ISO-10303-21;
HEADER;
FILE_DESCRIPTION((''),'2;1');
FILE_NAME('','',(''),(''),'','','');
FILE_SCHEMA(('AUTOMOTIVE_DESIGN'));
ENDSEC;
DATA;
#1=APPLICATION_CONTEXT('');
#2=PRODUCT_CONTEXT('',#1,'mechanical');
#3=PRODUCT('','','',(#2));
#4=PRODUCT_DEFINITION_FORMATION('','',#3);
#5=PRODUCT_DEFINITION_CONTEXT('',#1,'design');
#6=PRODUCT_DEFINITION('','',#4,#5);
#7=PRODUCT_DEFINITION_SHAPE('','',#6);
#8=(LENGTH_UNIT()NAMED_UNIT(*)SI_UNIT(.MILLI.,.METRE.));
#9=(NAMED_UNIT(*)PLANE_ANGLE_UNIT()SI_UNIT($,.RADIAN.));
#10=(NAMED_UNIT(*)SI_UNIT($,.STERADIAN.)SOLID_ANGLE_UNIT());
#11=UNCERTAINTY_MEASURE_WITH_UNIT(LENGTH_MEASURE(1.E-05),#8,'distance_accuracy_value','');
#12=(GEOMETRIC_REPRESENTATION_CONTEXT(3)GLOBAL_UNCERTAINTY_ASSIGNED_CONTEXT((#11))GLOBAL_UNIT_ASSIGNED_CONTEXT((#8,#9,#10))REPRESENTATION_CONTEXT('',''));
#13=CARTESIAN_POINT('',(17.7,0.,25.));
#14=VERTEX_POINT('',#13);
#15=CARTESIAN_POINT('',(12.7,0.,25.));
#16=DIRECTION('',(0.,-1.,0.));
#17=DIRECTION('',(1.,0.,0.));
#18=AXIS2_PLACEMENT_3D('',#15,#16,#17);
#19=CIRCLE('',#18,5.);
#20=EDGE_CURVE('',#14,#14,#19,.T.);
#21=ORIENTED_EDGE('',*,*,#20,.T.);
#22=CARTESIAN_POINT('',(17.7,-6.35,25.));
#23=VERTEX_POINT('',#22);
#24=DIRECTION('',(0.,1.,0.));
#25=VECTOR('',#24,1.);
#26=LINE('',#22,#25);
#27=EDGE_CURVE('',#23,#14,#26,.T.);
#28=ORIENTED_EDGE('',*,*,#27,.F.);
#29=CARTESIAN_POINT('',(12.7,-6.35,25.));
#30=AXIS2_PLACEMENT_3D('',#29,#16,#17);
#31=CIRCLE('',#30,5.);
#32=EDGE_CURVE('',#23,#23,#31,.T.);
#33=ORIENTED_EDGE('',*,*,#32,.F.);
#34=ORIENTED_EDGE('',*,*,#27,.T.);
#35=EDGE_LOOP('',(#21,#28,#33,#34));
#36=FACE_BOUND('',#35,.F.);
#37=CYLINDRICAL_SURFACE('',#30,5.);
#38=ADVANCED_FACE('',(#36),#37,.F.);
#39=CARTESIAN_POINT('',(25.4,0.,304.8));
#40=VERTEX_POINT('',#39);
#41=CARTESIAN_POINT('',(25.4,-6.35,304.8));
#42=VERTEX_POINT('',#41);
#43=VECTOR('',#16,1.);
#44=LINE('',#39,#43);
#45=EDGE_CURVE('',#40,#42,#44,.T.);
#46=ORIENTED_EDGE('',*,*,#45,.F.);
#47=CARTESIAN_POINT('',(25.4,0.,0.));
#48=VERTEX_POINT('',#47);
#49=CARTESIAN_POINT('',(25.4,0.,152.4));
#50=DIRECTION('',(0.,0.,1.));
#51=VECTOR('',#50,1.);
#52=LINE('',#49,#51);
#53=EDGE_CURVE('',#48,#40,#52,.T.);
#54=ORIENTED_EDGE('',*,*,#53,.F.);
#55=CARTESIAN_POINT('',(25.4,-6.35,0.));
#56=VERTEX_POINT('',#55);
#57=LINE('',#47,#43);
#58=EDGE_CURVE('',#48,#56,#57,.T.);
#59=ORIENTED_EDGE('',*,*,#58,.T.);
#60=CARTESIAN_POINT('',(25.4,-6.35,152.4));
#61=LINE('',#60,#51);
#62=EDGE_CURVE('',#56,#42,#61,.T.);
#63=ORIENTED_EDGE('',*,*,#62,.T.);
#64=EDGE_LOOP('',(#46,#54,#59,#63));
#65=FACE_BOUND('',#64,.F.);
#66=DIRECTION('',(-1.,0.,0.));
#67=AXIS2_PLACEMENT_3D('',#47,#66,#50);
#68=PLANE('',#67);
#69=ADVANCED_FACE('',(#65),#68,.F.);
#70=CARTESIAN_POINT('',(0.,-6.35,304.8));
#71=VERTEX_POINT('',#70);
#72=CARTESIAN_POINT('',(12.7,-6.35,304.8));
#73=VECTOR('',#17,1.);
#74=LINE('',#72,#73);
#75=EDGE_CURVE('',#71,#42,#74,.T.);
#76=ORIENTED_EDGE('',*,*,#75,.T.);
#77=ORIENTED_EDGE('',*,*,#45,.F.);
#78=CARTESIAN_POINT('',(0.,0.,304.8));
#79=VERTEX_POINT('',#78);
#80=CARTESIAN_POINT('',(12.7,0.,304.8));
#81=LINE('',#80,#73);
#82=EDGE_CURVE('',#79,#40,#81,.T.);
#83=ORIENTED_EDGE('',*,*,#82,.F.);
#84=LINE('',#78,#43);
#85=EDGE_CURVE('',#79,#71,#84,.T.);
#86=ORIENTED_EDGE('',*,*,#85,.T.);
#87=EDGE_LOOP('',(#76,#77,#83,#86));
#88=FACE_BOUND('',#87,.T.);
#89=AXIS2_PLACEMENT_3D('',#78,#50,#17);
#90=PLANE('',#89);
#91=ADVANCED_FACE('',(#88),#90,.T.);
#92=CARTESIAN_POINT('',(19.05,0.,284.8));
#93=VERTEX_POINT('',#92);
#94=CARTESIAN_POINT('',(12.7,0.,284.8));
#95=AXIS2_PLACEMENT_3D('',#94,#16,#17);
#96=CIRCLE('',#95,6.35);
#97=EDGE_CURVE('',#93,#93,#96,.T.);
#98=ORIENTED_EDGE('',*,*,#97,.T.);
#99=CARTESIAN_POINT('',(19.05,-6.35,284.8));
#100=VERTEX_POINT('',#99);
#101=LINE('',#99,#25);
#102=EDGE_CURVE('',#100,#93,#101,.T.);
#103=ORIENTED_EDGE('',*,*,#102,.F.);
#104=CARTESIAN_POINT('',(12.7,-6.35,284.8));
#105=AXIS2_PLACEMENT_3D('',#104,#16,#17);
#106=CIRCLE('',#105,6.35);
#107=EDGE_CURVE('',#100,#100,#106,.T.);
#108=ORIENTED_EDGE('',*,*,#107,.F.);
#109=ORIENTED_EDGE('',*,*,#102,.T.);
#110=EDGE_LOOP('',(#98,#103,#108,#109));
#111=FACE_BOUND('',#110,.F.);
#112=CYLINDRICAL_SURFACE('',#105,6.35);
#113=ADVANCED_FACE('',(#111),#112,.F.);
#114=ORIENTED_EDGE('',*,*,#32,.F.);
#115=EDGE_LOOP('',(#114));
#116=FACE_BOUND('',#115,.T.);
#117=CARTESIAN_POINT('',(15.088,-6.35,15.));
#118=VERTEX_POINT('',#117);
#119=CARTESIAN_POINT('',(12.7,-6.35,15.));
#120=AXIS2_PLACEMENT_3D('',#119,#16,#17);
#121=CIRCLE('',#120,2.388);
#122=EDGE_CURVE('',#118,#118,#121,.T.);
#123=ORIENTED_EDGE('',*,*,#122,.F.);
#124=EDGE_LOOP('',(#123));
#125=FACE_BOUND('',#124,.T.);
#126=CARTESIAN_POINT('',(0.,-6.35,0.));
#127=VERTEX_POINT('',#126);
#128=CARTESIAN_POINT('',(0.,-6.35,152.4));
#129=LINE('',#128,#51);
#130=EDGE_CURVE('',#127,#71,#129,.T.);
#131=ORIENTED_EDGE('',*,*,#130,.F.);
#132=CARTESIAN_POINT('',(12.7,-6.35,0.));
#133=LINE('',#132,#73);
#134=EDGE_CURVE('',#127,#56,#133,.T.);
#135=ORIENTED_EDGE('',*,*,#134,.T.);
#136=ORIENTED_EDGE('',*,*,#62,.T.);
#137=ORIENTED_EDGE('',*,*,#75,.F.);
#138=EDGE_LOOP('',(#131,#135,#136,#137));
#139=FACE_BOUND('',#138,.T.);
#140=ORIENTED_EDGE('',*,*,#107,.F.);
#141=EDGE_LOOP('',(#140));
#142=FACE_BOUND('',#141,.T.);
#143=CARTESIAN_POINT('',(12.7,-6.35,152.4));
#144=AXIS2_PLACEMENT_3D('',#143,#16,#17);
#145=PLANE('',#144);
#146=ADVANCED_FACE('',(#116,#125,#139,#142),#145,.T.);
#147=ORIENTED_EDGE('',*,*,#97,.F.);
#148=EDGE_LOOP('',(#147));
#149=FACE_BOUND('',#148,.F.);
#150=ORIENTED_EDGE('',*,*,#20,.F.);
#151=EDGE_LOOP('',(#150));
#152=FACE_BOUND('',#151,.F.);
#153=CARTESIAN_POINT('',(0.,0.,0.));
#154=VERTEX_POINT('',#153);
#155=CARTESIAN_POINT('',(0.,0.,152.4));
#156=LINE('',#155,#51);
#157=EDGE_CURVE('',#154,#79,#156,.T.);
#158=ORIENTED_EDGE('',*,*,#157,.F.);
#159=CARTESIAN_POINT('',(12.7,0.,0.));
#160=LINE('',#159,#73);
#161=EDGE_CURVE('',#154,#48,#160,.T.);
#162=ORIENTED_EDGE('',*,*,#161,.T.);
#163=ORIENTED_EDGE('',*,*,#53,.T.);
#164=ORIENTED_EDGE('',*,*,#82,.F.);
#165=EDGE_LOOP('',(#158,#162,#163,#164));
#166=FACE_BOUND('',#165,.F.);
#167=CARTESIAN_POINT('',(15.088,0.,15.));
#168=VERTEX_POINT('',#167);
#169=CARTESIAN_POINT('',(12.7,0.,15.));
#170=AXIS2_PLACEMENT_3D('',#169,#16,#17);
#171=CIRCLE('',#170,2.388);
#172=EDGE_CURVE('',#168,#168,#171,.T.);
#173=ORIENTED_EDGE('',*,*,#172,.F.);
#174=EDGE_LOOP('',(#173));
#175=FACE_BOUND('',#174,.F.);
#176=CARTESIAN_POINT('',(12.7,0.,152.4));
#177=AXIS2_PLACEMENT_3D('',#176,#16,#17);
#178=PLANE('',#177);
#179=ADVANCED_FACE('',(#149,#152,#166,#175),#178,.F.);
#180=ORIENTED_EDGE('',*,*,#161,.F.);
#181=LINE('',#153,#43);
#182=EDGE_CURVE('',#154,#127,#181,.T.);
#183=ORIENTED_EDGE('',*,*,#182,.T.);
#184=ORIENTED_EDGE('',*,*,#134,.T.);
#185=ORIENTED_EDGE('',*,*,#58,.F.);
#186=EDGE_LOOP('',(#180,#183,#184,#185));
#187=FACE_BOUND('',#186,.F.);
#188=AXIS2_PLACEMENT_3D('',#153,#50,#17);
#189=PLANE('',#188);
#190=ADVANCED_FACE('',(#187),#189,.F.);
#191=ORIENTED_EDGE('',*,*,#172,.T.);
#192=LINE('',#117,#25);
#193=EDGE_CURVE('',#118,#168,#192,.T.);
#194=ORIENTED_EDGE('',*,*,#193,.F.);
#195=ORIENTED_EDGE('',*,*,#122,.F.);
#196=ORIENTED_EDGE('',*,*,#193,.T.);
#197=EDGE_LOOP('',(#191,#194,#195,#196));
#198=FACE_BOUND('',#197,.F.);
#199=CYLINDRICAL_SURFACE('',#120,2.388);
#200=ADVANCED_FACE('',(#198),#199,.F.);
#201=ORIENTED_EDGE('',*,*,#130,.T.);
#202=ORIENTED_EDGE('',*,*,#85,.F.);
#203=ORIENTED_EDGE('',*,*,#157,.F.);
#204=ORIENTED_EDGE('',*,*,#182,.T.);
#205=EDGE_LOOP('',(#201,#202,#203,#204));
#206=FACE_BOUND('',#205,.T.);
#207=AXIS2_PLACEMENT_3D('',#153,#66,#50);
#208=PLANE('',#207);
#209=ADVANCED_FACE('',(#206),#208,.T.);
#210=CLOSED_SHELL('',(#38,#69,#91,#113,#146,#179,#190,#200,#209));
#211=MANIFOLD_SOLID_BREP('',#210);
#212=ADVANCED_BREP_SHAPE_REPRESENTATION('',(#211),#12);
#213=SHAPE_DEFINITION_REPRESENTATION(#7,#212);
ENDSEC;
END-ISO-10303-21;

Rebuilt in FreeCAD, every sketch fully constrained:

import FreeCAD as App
import Part
import Sketcher

V = App.Vector
Q = App.Units.Quantity

doc = App.newDocument("Part")
params = doc.addObject("Spreadsheet::Sheet", "Params")
for row, (alias, value) in enumerate([
    ("sketch1_width", "1 in"),
    ("sketch1_height", "12 in"),
    ("pad1_length", "0.25 in"),
    ("sketch3_diameter", "0.5 in"),
], start=1):
    params.set(f"A{row}", alias)
    params.set(f"B{row}", "=" + value)
    params.setAlias(f"B{row}", alias)

body = doc.addObject("PartDesign::Body", "Body")

# Sketch on XZ plane
sketch1 = doc.addObject("Sketcher::SketchObject", "Sketch")
body.addObject(sketch1)
sketch1.AttachmentSupport = (doc.XZ_Plane, [""])
sketch1.MapMode = "FlatFace"
sketch1.addGeometry([
    Part.LineSegment(V(0, 305, 0), V(0, 0, 0)),
    Part.LineSegment(V(0, 0, 0), V(25, 0, 0)),
    Part.LineSegment(V(25, 0, 0), V(25, 305, 0)),
    Part.LineSegment(V(25, 305, 0), V(0, 305, 0)),
], False)
sketch1.addConstraint([
    Sketcher.Constraint("Coincident", 0, 2, 1, 1),
    Sketcher.Constraint("Coincident", 1, 2, 2, 1),
    Sketcher.Constraint("Coincident", 2, 2, 3, 1),
    Sketcher.Constraint("Coincident", 3, 2, 0, 1),
    Sketcher.Constraint("Vertical", 0),
    Sketcher.Constraint("Horizontal", 1),
    Sketcher.Constraint("Vertical", 2),
    Sketcher.Constraint("Horizontal", 3),
    Sketcher.Constraint("Coincident", 0, 2, -1, 1),
    Sketcher.Constraint("DistanceX", 1, 1, 1, 2, Q("1 in")),
    Sketcher.Constraint("DistanceY", 0, 2, 0, 1, Q("12 in")),
])
sketch1.setExpression("Constraints[9]", "Params.sketch1_width")
sketch1.setExpression("Constraints[10]", "Params.sketch1_height")
pad1 = doc.addObject("PartDesign::Pad", "Pad")
body.addObject(pad1)
pad1.Profile = sketch1
pad1.setExpression("Length", "Params.pad1_length")

# Sketch on XZ plane
sketch2 = doc.addObject("Sketcher::SketchObject", "Sketch001")
body.addObject(sketch2)
sketch2.AttachmentSupport = (doc.XZ_Plane, [""])
sketch2.MapMode = "FlatFace"
sketch2.AttachmentOffset = App.Placement(V(0, 0, 0.25 * 25.4), App.Rotation())
sketch2.addGeometry(Part.Circle(V(12.7, 15, 0), V(0, 0, 1), 2.4), False)
sketch2.addConstraint([
    Sketcher.Constraint("DistanceX", -1, 1, 0, 3, Q("0.5 in")),
    Sketcher.Constraint("Diameter", 0, 4.776),
    Sketcher.Constraint("DistanceY", -1, 1, 0, 3, 15.0),
])
pocket1 = doc.addObject("PartDesign::Pocket", "Pocket")
body.addObject(pocket1)
pocket1.Profile = sketch2
pocket1.Type = "ThroughAll"

# Sketch on XZ plane
sketch3 = doc.addObject("Sketcher::SketchObject", "Sketch002")
body.addObject(sketch3)
sketch3.AttachmentSupport = (doc.XZ_Plane, [""])
sketch3.MapMode = "FlatFace"
sketch3.AttachmentOffset = App.Placement(V(0, 0, 0.25 * 25.4), App.Rotation())
sketch3.addGeometry(Part.Circle(V(13, 285, 0), V(0, 0, 1), 6), False)
sketch3.addConstraint([
    Sketcher.Constraint("Diameter", 0, Q("0.5 in")),
    Sketcher.Constraint("DistanceX", -1, 1, 0, 3, Q("0.5 in")),
    Sketcher.Constraint("DistanceY", -1, 1, 0, 3, 284.8),
])
sketch3.setExpression("Constraints[0]", "Params.sketch3_diameter")
pocket2 = doc.addObject("PartDesign::Pocket", "Pocket001")
body.addObject(pocket2)
pocket2.Profile = sketch3
pocket2.Type = "ThroughAll"

# Sketch on XZ plane
sketch4 = doc.addObject("Sketcher::SketchObject", "Sketch003")
body.addObject(sketch4)
sketch4.AttachmentSupport = (doc.XZ_Plane, [""])
sketch4.MapMode = "FlatFace"
sketch4.AttachmentOffset = App.Placement(V(0, 0, 0.25 * 25.4), App.Rotation())
sketch4.addGeometry(Part.Circle(V(13, 25, 0), V(0, 0, 1), 5), False)
sketch4.addConstraint([
    Sketcher.Constraint("DistanceX", -1, 1, 0, 3, Q("0.5 in")),
    Sketcher.Constraint("Diameter", 0, 10.0),
    Sketcher.Constraint("DistanceY", -1, 1, 0, 3, 25.0),
])
pocket3 = doc.addObject("PartDesign::Pocket", "Pocket002")
body.addObject(pocket3)
pocket3.Profile = sketch4
pocket3.Type = "ThroughAll"

doc.recompute()
